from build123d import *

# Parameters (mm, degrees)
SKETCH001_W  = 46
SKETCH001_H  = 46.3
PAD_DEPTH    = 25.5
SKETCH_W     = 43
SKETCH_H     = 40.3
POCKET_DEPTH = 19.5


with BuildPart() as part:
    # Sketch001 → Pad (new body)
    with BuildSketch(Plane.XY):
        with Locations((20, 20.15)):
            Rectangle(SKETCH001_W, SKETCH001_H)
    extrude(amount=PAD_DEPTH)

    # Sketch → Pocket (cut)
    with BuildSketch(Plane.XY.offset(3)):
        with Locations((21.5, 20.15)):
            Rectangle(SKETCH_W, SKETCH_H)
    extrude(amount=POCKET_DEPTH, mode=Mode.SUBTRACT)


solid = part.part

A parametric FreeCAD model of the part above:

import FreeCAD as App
import Part
import Sketcher
from FreeCAD import Vector


def add_polygon(sketch, points):
    """Adds a closed chain of lines whose ends are joined by coincident constraints."""
    first, n = sketch.GeometryCount, len(points)
    for a, b in zip(points, points[1:] + points[:1]):
        sketch.addGeometry(Part.LineSegment(App.Vector(*a, 0), App.Vector(*b, 0)), False)
    for i in range(n):
        sketch.addConstraint(Sketcher.Constraint("Coincident", first + i, 2, first + (i + 1) % n, 1))

doc = App.newDocument("Part")
body = doc.addObject("PartDesign::Body", "Body")

# Sketch on XY plane
sketch1 = body.newObject("Sketcher::SketchObject", "Sketch")
sketch1.AttachmentSupport = (doc.getObject("XY_Plane"), [""])
sketch1.MapMode = "FlatFace"
add_polygon(sketch1, [(-3, 43), (-3, -3), (43, -3), (43, 43)])  # lines 0-3
sketch1.addConstraint([
    Sketcher.Constraint("Vertical", 0),
    Sketcher.Constraint("Horizontal", 1),
    Sketcher.Constraint("Vertical", 2),
    Sketcher.Constraint("Horizontal", 3),
    Sketcher.Constraint("DistanceX", 1, 1, 1, 2, 46.0),
    Sketcher.Constraint("DistanceY", 0, 2, 0, 1, 46.3),
    Sketcher.Constraint("DistanceX", 0, 2, -1, 1, 3.0),
    Sketcher.Constraint("DistanceY", 0, 2, -1, 1, 3.0),
])
pad1 = body.newObject("PartDesign::Pad", "Pad")
pad1.Profile = sketch1
pad1.Length = 25.5

# Sketch on XY plane
sketch2 = body.newObject("Sketcher::SketchObject", "Sketch001")
sketch2.AttachmentSupport = (doc.getObject("XY_Plane"), [""])
sketch2.MapMode = "FlatFace"
sketch2.AttachmentOffset = App.Placement(Vector(0, 0, 3), App.Rotation())
add_polygon(sketch2, [(0, 40), (0, 0), (43, 0), (43, 40)])  # lines 0-3
sketch2.addConstraint([
    Sketcher.Constraint("Vertical", 0),
    Sketcher.Constraint("Horizontal", 1),
    Sketcher.Constraint("Vertical", 2),
    Sketcher.Constraint("Horizontal", 3),
    Sketcher.Constraint("Coincident", 0, 2, -1, 1),
    Sketcher.Constraint("DistanceX", 1, 1, 1, 2, 43.0),
    Sketcher.Constraint("DistanceY", 0, 2, 0, 1, 40.3),
])
pocket1 = body.newObject("PartDesign::Pocket", "Pocket")
pocket1.Profile = sketch2
pocket1.Length = 19.5
pocket1.Reversed = True

doc.recompute()
